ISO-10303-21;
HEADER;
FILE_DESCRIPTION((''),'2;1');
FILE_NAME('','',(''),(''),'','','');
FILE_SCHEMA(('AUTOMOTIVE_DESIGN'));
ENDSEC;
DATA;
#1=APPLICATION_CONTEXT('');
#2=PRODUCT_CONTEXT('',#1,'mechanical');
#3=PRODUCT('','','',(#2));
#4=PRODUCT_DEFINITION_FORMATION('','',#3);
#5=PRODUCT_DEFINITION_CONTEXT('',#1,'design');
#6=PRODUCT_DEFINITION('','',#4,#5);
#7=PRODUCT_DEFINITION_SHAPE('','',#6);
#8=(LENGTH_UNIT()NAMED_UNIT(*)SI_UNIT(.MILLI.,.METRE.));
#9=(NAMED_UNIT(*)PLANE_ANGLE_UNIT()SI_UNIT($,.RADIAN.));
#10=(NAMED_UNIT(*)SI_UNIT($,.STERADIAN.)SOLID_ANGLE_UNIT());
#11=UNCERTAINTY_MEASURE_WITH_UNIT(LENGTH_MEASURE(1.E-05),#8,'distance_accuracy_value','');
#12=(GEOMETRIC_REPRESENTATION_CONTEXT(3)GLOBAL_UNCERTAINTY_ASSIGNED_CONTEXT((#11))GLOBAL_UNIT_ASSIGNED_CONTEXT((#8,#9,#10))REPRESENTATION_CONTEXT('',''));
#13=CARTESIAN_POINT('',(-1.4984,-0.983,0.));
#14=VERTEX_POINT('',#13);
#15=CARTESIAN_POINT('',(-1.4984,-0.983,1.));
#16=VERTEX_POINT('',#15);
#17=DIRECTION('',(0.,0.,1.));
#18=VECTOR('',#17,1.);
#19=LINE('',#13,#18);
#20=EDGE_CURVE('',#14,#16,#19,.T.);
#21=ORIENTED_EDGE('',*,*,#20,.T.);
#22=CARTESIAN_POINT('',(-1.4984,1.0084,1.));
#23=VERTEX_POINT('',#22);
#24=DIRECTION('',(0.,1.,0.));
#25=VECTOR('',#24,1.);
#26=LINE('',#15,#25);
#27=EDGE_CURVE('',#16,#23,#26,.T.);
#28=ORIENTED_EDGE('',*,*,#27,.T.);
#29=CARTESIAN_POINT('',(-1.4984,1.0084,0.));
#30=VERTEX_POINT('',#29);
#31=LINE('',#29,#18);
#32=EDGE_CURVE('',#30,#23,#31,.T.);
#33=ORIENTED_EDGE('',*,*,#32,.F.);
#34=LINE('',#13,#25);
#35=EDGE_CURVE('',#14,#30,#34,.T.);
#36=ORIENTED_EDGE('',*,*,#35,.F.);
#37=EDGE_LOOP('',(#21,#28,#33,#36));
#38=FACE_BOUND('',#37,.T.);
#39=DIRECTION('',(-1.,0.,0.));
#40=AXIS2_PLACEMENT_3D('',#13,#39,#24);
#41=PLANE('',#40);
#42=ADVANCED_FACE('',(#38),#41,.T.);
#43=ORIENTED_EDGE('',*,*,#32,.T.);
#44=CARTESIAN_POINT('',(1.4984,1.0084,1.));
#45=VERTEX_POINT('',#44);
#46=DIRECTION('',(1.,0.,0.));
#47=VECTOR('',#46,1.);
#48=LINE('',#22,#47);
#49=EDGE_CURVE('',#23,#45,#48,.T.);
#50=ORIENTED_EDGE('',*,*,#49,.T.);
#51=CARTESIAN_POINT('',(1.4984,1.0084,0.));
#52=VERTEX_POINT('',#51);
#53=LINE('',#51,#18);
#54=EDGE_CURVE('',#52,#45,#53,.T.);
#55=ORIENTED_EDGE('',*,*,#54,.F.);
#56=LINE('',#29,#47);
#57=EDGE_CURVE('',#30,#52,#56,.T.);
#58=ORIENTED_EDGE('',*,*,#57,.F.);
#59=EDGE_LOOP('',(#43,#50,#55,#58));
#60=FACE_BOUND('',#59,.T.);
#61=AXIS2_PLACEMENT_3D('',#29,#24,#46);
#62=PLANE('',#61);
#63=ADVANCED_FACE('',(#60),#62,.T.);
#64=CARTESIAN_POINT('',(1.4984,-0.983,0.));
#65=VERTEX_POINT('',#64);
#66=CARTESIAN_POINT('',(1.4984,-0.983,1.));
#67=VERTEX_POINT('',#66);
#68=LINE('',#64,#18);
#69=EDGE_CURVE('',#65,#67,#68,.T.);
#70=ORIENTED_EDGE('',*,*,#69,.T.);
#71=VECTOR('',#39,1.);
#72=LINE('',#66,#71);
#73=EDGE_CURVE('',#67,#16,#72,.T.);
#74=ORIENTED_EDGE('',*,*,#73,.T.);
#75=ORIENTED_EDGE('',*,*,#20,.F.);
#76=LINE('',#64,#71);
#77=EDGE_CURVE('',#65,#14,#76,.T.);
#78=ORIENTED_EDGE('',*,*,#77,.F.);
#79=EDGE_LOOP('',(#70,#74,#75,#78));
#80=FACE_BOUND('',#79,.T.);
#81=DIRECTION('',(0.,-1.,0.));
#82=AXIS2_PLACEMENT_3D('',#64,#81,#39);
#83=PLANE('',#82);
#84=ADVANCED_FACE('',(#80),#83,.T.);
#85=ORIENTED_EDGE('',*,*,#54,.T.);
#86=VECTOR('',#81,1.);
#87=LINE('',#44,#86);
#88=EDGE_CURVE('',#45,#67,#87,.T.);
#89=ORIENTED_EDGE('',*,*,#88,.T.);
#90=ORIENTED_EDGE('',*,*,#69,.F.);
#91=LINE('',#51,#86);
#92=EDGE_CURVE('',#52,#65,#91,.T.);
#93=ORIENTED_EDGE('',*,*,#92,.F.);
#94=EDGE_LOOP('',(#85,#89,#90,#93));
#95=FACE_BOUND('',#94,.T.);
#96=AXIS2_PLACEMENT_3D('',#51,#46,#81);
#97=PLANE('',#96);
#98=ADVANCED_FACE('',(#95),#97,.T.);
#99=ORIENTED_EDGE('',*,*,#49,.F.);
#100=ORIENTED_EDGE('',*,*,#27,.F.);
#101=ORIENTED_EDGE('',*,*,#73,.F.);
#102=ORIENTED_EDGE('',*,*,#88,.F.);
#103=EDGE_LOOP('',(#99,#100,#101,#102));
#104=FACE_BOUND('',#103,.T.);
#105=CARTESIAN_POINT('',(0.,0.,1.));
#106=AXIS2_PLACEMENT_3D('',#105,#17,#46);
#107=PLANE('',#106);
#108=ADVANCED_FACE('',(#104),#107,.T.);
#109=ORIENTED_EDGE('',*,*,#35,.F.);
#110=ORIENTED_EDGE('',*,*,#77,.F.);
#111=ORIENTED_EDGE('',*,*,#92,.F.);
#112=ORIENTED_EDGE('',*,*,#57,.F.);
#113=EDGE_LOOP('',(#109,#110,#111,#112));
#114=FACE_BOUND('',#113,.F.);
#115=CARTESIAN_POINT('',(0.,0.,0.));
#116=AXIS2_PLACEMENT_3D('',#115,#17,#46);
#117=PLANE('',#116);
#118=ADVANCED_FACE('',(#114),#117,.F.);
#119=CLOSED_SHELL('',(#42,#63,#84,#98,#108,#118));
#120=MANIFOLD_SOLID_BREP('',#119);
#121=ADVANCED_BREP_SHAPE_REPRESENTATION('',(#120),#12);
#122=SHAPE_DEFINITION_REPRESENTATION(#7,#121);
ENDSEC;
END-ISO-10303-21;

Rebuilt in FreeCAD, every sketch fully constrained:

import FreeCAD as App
import Part
import Sketcher

V = App.Vector
Q = App.Units.Quantity


def add_polygon(sketch, points):
    """Adds a closed chain of lines whose ends are joined by coincident constraints."""
    first, n = sketch.GeometryCount, len(points)
    for a, b in zip(points, points[1:] + points[:1]):
        sketch.addGeometry(Part.LineSegment(App.Vector(*a, 0), App.Vector(*b, 0)), False)
    for i in range(n):
        sketch.addConstraint(Sketcher.Constraint("Coincident", first + i, 2, first + (i + 1) % n, 1))

doc = App.newDocument("Part")
body = doc.addObject("PartDesign::Body", "Body")

# Sketch on XY plane
sketch1 = body.newObject("Sketcher::SketchObject", "Sketch")
sketch1.AttachmentSupport = (doc.getObject("XY_Plane"), [""])
sketch1.MapMode = "FlatFace"
add_polygon(sketch1, [(1.4984, 1.0084), (-1.4984, 1.0084), (-1.4984, -0.983), (1.4984, -0.983)])  # lines 0-3
sketch1.addConstraint(Sketcher.Constraint("Horizontal", 0))
sketch1.addConstraint(Sketcher.Constraint("Vertical", 1))
sketch1.addConstraint(Sketcher.Constraint("Horizontal", 2))
sketch1.addConstraint(Sketcher.Constraint("Vertical", 3))
sketch1.addConstraint(Sketcher.Constraint("DistanceX", 0, 2, 0, 1, Q("2.9968 mm")))
sketch1.addConstraint(Sketcher.Constraint("DistanceY", 1, 2, 1, 1, Q("1.9914 mm")))
sketch1.addConstraint(Sketcher.Constraint("DistanceY", 1, 2, -1, 1, Q("0.983 mm")))
sketch1.addConstraint(Sketcher.Constraint("DistanceX", 0, 2, -1, 1, Q("1.4984 mm")))
pad1 = body.newObject("PartDesign::Pad", "Pad")
pad1.Profile = sketch1
pad1.Length = 1

doc.recompute()
